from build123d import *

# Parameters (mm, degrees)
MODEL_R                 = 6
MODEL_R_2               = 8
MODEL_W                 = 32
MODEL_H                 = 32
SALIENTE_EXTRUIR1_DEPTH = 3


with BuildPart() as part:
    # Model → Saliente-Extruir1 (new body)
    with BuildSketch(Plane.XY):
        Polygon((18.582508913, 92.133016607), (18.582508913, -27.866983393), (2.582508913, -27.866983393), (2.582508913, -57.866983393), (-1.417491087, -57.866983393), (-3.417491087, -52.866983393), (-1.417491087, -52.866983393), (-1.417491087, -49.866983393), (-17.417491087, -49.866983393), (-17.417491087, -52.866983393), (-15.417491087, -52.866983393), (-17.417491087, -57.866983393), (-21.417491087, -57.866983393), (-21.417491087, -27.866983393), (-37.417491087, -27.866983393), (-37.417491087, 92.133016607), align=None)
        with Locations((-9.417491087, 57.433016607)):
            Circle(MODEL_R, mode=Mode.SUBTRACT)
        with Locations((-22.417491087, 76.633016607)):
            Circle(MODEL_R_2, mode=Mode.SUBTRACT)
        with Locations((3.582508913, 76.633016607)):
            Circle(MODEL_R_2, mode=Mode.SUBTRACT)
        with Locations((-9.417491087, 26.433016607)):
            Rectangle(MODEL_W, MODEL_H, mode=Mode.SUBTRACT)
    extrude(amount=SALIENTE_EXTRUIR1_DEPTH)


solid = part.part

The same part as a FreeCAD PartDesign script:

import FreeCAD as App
import Part
import Sketcher

doc = App.newDocument("Part")
body = doc.addObject("PartDesign::Body", "Body")

sketch1 = body.newObject("Sketcher::SketchObject", "Sketch")
sketch1.AttachmentSupport = (doc.getObject("XY_Plane"), [""])
sketch1.MapMode = "FlatFace"
sketch1.addGeometry([
    Part.LineSegment(App.Vector(18.582509, -27.866983, 0), App.Vector(18.582509, 92.133017, 0)),
    Part.LineSegment(App.Vector(18.582509, 92.133017, 0), App.Vector(-37.417491, 92.133017, 0)),
    Part.LineSegment(App.Vector(-37.417491, 92.133017, 0), App.Vector(-37.417491, -27.866983, 0)),
    Part.LineSegment(App.Vector(-37.417491, -27.866983, 0), App.Vector(-21.417491, -27.866983, 0)),
    Part.LineSegment(App.Vector(-21.417491, -27.866983, 0), App.Vector(-21.417491, -57.866983, 0)),
    Part.LineSegment(App.Vector(-21.417491, -57.866983, 0), App.Vector(-17.417491, -57.866983, 0)),
    Part.LineSegment(App.Vector(-17.417491, -57.866983, 0), App.Vector(-15.417491, -52.866983, 0)),
    Part.LineSegment(App.Vector(-15.417491, -52.866983, 0), App.Vector(-17.417491, -52.866983, 0)),
    Part.LineSegment(App.Vector(-17.417491, -52.866983, 0), App.Vector(-17.417491, -49.866983, 0)),
    Part.LineSegment(App.Vector(-17.417491, -49.866983, 0), App.Vector(-1.417491, -49.866983, 0)),
    Part.LineSegment(App.Vector(-1.417491, -49.866983, 0), App.Vector(-1.417491, -52.866983, 0)),
    Part.LineSegment(App.Vector(-1.417491, -52.866983, 0), App.Vector(-3.417491, -52.866983, 0)),
    Part.LineSegment(App.Vector(-3.417491, -52.866983, 0), App.Vector(-1.417491, -57.866983, 0)),
    Part.LineSegment(App.Vector(-1.417491, -57.866983, 0), App.Vector(2.582509, -57.866983, 0)),
    Part.LineSegment(App.Vector(2.582509, -57.866983, 0), App.Vector(2.582509, -27.866983, 0)),
    Part.LineSegment(App.Vector(2.582509, -27.866983, 0), App.Vector(18.582509, -27.866983, 0)),
    Part.LineSegment(App.Vector(-25.417491, 10.433017, 0), App.Vector(-25.417491, 42.433017, 0)),
    Part.LineSegment(App.Vector(-25.417491, 42.433017, 0), App.Vector(6.582509, 42.433017, 0)),
    Part.LineSegment(App.Vector(6.582509, 42.433017, 0), App.Vector(6.582509, 10.433017, 0)),
    Part.LineSegment(App.Vector(6.582509, 10.433017, 0), App.Vector(-25.417491, 10.433017, 0)),
    Part.Circle(App.Vector(3.582509, 76.633017, 0), App.Vector(0, 0, 1), 8),
    Part.Circle(App.Vector(-9.417491, 57.433017, 0), App.Vector(0, 0, 1), 6),
    Part.Circle(App.Vector(-22.417491, 76.633017, 0), App.Vector(0, 0, 1), 8),
], False)
sketch1.addConstraint([
    Sketcher.Constraint("Coincident", 0, 2, 1, 1),
    Sketcher.Constraint("Coincident", 1, 2, 2, 1),
    Sketcher.Constraint("Coincident", 2, 2, 3, 1),
    Sketcher.Constraint("Coincident", 3, 2, 4, 1),
    Sketcher.Constraint("Coincident", 4, 2, 5, 1),
    Sketcher.Constraint("Coincident", 5, 2, 6, 1),
    Sketcher.Constraint("Coincident", 6, 2, 7, 1),
    Sketcher.Constraint("Coincident", 7, 2, 8, 1),
    Sketcher.Constraint("Coincident", 8, 2, 9, 1),
    Sketcher.Constraint("Coincident", 9, 2, 10, 1),
    Sketcher.Constraint("Coincident", 10, 2, 11, 1),
    Sketcher.Constraint("Coincident", 11, 2, 12, 1),
    Sketcher.Constraint("Coincident", 12, 2, 13, 1),
    Sketcher.Constraint("Coincident", 13, 2, 14, 1),
    Sketcher.Constraint("Coincident", 14, 2, 15, 1),
    Sketcher.Constraint("Coincident", 15, 2, 0, 1),
    Sketcher.Constraint("Coincident", 16, 2, 17, 1),
    Sketcher.Constraint("Coincident", 17, 2, 18, 1),
    Sketcher.Constraint("Coincident", 18, 2, 19, 1),
    Sketcher.Constraint("Coincident", 19, 2, 16, 1),
    Sketcher.Constraint("Vertical", 0),
    Sketcher.Constraint("Horizontal", 1),
    Sketcher.Constraint("Vertical", 2),
    Sketcher.Constraint("Horizontal", 3),
    Sketcher.Constraint("Vertical", 4),
    Sketcher.Constraint("Horizontal", 5),
    Sketcher.Constraint("Horizontal", 7),
    Sketcher.Constraint("Vertical", 8),
    Sketcher.Constraint("Horizontal", 9),
    Sketcher.Constraint("Vertical", 10),
    Sketcher.Constraint("Horizontal", 11),
    Sketcher.Constraint("Horizontal", 13),
    Sketcher.Constraint("Vertical", 14),
    Sketcher.Constraint("Horizontal", 15),
    Sketcher.Constraint("Vertical", 16),
    Sketcher.Constraint("Horizontal", 17),
    Sketcher.Constraint("Vertical", 18),
    Sketcher.Constraint("Horizontal", 19),
    Sketcher.Constraint("Equal", 20, 22),
    Sketcher.Constraint("Horizontal", 20, 3, 22, 3),
    Sketcher.Constraint("Horizontal", 7, 2, 10, 2),
    Sketcher.Constraint("Horizontal", 5, 2, 12, 2),
    Sketcher.Constraint("Horizontal", 3, 2, 14, 2),
    Sketcher.Constraint("Vertical", 5, 2, 7, 2),
    Sketcher.Constraint("Vertical", 10, 2, 12, 2),
    Sketcher.Constraint("Equal", 3, 9),
    Sketcher.Constraint("Equal", 7, 11),
    Sketcher.Constraint("Equal", 5, 13),
    Sketcher.Constraint("Equal", 9, 15),
    Sketcher.Constraint("Equal", 19, 16),
    Sketcher.Constraint("Diameter", 20, 16.0),
    Sketcher.Constraint("Diameter", 21, 12.0),
    Sketcher.Constraint("DistanceX", 1, 2, 1, 1, 56.0),
    Sketcher.Constraint("DistanceX", 3, 1, 3, 2, 16.0),
    Sketcher.Constraint("DistanceX", 7, 2, 7, 1, 2.0),
    Sketcher.Constraint("DistanceX", 17, 1, 17, 2, 32.0),
    Sketcher.Constraint("DistanceY", 0, 1, 0, 2, 120.0),
    Sketcher.Constraint("DistanceY", 4, 2, 4, 1, 30.0),
    Sketcher.Constraint("DistanceY", 8, 1, 8, 2, 3.0),
    Sketcher.Constraint("DistanceX", 21, 3, 20, 3, 13.0),
    Sketcher.Constraint("DistanceX", 22, 3, 21, 3, 13.0),
    Sketcher.Constraint("DistanceX", 20, 3, 0, 2, 15.0),
    Sketcher.Constraint("DistanceY", 5, 2, 6, 2, 5.0),
    Sketcher.Constraint("DistanceX", 16, 2, 21, 3, 16.0),
    Sketcher.Constraint("DistanceY", 16, 2, 21, 3, 15.0),
    Sketcher.Constraint("DistanceY", 21, 3, 20, 3, 19.2),
    Sketcher.Constraint("DistanceY", 20, 3, 0, 2, 15.5),
    Sketcher.Constraint("DistanceX", -1, 1, 20, 3, 3.582509),
    Sketcher.Constraint("DistanceY", -1, 1, 20, 3, 76.633017),
])
pad1 = body.newObject("PartDesign::Pad", "Pad")
pad1.Profile = sketch1
pad1.Length = 3

doc.recompute()
